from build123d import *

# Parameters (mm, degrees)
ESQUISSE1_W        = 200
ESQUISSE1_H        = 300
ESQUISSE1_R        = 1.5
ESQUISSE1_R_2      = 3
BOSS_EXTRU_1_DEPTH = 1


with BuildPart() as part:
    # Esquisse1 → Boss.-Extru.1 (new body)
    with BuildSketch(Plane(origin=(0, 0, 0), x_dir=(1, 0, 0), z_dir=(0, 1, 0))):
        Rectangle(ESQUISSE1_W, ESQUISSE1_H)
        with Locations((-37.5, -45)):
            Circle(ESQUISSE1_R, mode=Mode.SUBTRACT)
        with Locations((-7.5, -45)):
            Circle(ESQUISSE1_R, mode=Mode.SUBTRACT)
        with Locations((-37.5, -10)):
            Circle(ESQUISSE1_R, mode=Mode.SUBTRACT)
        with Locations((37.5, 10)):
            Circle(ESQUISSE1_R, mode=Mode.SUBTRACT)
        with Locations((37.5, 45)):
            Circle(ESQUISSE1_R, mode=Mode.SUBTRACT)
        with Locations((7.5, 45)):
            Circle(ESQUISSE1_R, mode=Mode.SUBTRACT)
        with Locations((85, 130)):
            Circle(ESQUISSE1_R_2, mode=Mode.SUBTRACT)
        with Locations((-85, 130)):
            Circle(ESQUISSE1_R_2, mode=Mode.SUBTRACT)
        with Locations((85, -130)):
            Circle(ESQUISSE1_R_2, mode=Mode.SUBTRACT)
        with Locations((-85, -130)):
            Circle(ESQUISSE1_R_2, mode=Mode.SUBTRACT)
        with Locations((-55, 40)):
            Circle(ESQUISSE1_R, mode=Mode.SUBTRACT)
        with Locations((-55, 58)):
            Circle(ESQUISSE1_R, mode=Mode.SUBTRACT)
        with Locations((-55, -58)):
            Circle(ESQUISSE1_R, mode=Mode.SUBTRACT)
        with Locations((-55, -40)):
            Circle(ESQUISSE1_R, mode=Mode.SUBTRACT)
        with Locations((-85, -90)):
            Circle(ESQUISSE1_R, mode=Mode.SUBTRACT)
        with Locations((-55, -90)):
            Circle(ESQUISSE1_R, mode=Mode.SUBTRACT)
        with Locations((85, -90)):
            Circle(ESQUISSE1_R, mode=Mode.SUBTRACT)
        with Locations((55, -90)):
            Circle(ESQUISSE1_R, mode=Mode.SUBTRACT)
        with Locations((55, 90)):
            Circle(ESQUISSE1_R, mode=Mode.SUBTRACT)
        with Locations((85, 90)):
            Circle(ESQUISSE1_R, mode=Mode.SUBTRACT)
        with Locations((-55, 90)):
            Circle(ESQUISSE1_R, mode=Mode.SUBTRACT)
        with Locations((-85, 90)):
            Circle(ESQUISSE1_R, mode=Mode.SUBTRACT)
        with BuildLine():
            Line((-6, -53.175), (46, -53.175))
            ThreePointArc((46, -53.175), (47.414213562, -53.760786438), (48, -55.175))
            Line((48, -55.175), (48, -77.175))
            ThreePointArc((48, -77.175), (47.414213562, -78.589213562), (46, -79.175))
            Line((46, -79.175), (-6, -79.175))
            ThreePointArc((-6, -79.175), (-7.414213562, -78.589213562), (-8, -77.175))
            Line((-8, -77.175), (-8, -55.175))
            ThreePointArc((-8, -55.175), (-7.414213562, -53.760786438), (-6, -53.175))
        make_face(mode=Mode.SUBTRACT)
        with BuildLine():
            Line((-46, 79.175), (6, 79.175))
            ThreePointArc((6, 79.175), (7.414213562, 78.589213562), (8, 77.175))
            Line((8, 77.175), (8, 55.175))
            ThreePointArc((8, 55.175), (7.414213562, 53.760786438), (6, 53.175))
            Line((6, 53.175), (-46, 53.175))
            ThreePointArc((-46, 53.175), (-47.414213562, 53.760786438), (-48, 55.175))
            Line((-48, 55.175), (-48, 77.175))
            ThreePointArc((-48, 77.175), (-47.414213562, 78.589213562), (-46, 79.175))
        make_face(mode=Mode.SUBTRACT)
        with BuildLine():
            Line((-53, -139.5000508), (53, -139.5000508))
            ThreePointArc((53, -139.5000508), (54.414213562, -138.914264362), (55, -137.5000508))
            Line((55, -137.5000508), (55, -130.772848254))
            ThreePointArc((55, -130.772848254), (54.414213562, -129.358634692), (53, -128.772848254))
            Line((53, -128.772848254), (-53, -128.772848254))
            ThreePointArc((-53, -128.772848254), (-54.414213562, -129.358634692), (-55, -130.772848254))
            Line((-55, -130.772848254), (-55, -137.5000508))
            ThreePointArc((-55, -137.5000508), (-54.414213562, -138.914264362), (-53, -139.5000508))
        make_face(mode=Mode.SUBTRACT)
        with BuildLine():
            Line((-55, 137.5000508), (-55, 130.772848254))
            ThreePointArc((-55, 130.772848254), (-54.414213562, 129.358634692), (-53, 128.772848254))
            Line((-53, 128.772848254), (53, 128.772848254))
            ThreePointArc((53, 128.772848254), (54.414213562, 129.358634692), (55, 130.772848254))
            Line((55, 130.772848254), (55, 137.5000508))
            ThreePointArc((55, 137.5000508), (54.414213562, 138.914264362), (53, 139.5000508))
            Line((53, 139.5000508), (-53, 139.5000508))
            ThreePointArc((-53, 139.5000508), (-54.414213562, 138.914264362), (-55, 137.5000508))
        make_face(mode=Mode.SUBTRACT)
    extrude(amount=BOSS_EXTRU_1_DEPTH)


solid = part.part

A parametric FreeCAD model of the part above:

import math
import FreeCAD as App
import Part
import Sketcher

V = App.Vector

doc = App.newDocument("Part")
body = doc.addObject("PartDesign::Body", "Body")

# Sketch on XZ plane
sketch1 = doc.addObject("Sketcher::SketchObject", "Sketch")
body.addObject(sketch1)
sketch1.AttachmentSupport = (doc.XZ_Plane, [""])
sketch1.MapMode = "FlatFace"
sketch1.addGeometry(Part.LineSegment(V(-100, -150, 0), V(-100, 150, 0)), False)
sketch1.addGeometry(Part.LineSegment(V(-100, 150, 0), V(100, 150, 0)), False)
sketch1.addGeometry(Part.LineSegment(V(100, 150, 0), V(100, -150, 0)), False)
sketch1.addGeometry(Part.LineSegment(V(100, -150, 0), V(-100, -150, 0)), False)
sketch1.addGeometry(Part.Circle(V(-85, 130, 0), V(0, 0, 1), 3), False)
sketch1.addGeometry(Part.Circle(V(-85, 90, 0), V(0, 0, 1), 1.5), False)
sketch1.addGeometry(Part.Circle(V(-55, 90, 0), V(0, 0, 1), 1.5), False)
sketch1.addGeometry(Part.Circle(V(-55, 58, 0), V(0, 0, 1), 1.5), False)
sketch1.addGeometry(Part.Circle(V(-55, 40, 0), V(0, 0, 1), 1.5), False)
sketch1.addGeometry(Part.Circle(V(-37.5, 45, 0), V(0, 0, 1), 1.5), False)
sketch1.addGeometry(Part.Circle(V(-7.5, 45, 0), V(0, 0, 1), 1.5), False)
sketch1.addGeometry(Part.Circle(V(-37.5, 10, 0), V(0, 0, 1), 1.5), False)
sketch1.addGeometry(Part.LineSegment(V(53, 139.5, 0), V(-53, 139.5, 0)), False)
sketch1.addGeometry(Part.ArcOfCircle(Part.Circle(V(-53, 137.5, 0), V(0, 0, 1), 2), math.radians(90), math.radians(180)), False)
sketch1.addGeometry(Part.LineSegment(V(-55, 137.5, 0), V(-55, 130.8, 0)), False)
sketch1.addGeometry(Part.ArcOfCircle(Part.Circle(V(-53, 130.8, 0), V(0, 0, 1), 2), math.radians(-180), math.radians(-90)), False)
sketch1.addGeometry(Part.LineSegment(V(-53, 128.8, 0), V(53, 128.8, 0)), False)
sketch1.addGeometry(Part.ArcOfCircle(Part.Circle(V(53, 130.8, 0), V(0, 0, 1), 2), math.radians(-90), math.radians(0)), False)
sketch1.addGeometry(Part.LineSegment(V(55, 130.8, 0), V(55, 137.5, 0)), False)
sketch1.addGeometry(Part.ArcOfCircle(Part.Circle(V(53, 137.5, 0), V(0, 0, 1), 2), math.radians(0), math.radians(90)), False)
sketch1.addGeometry(Part.Circle(V(85, 130, 0), V(0, 0, 1), 3), False)
sketch1.addGeometry(Part.Circle(V(55, 90, 0), V(0, 0, 1), 1.5), False)
sketch1.addGeometry(Part.Circle(V(85, 90, 0), V(0, 0, 1), 1.5), False)
sketch1.addGeometry(Part.ArcOfCircle(Part.Circle(V(-6, 55.2, 0), V(0, 0, 1), 2), math.radians(-180), math.radians(-90)), False)
sketch1.addGeometry(Part.LineSegment(V(-6, 53.2, 0), V(46, 53.2, 0)), False)
sketch1.addGeometry(Part.ArcOfCircle(Part.Circle(V(46, 55.2, 0), V(0, 0, 1), 2), math.radians(-90), math.radians(0)), False)
sketch1.addGeometry(Part.LineSegment(V(48, 55.2, 0), V(48, 77.2, 0)), False)
sketch1.addGeometry(Part.ArcOfCircle(Part.Circle(V(46, 77.2, 0), V(0, 0, 1), 2), math.radians(0), math.radians(90)), False)
sketch1.addGeometry(Part.LineSegment(V(46, 79.2, 0), V(-6, 79.2, 0)), False)
sketch1.addGeometry(Part.ArcOfCircle(Part.Circle(V(-6, 77.2, 0), V(0, 0, 1), 2), math.radians(90), math.radians(180)), False)
sketch1.addGeometry(Part.LineSegment(V(-8, 77.2, 0), V(-8, 55.2, 0)), False)
sketch1.addGeometry(Part.Circle(V(-55, -40, 0), V(0, 0, 1), 1.5), False)
sketch1.addGeometry(Part.Circle(V(-55, -58, 0), V(0, 0, 1), 1.5), False)
sketch1.addGeometry(Part.ArcOfCircle(Part.Circle(V(-46, -77.2, 0), V(0, 0, 1), 2), math.radians(-180), math.radians(-90)), False)
sketch1.addGeometry(Part.LineSegment(V(-46, -79.2, 0), V(6, -79.2, 0)), False)
sketch1.addGeometry(Part.ArcOfCircle(Part.Circle(V(6, -77.2, 0), V(0, 0, 1), 2), math.radians(-90), math.radians(0)), False)
sketch1.addGeometry(Part.LineSegment(V(8, -77.2, 0), V(8, -55.2, 0)), False)
sketch1.addGeometry(Part.ArcOfCircle(Part.Circle(V(6, -55.2, 0), V(0, 0, 1), 2), math.radians(0), math.radians(90)), False)
sketch1.addGeometry(Part.LineSegment(V(6, -53.2, 0), V(-46, -53.2, 0)), False)
sketch1.addGeometry(Part.ArcOfCircle(Part.Circle(V(-46, -55.2, 0), V(0, 0, 1), 2), math.radians(90), math.radians(180)), False)
sketch1.addGeometry(Part.LineSegment(V(-48, -55.2, 0), V(-48, -77.2, 0)), False)
sketch1.addGeometry(Part.Circle(V(-85, -90, 0), V(0, 0, 1), 1.5), False)
sketch1.addGeometry(Part.Circle(V(-55, -90, 0), V(0, 0, 1), 1.5), False)
sketch1.addGeometry(Part.Circle(V(-85, -130, 0), V(0, 0, 1), 3), False)
sketch1.addGeometry(Part.Circle(V(37.5, -10, 0), V(0, 0, 1), 1.5), False)
sketch1.addGeometry(Part.Circle(V(7.5, -45, 0), V(0, 0, 1), 1.5), False)
sketch1.addGeometry(Part.Circle(V(37.5, -45, 0), V(0, 0, 1), 1.5), False)
sketch1.addGeometry(Part.LineSegment(V(-55, -130.8, 0), V(-55, -137.5, 0)), False)
sketch1.addGeometry(Part.ArcOfCircle(Part.Circle(V(-53, -137.5, 0), V(0, 0, 1), 2), math.radians(-180), math.radians(-90)), False)
sketch1.addGeometry(Part.LineSegment(V(-53, -139.5, 0), V(53, -139.5, 0)), False)
sketch1.addGeometry(Part.ArcOfCircle(Part.Circle(V(53, -137.5, 0), V(0, 0, 1), 2), math.radians(-90), math.radians(0)), False)
sketch1.addGeometry(Part.LineSegment(V(55, -137.5, 0), V(55, -130.8, 0)), False)
sketch1.addGeometry(Part.ArcOfCircle(Part.Circle(V(53, -130.8, 0), V(0, 0, 1), 2), math.radians(0), math.radians(90)), False)
sketch1.addGeometry(Part.LineSegment(V(53, -128.8, 0), V(-53, -128.8, 0)), False)
sketch1.addGeometry(Part.ArcOfCircle(Part.Circle(V(-53, -130.8, 0), V(0, 0, 1), 2), math.radians(90), math.radians(180)), False)
sketch1.addGeometry(Part.Circle(V(55, -90, 0), V(0, 0, 1), 1.5), False)
sketch1.addGeometry(Part.Circle(V(85, -90, 0), V(0, 0, 1), 1.5), False)
sketch1.addGeometry(Part.Circle(V(85, -130, 0), V(0, 0, 1), 3), False)
sketch1.addConstraint(Sketcher.Constraint("Coincident", 0, 2, 1, 1))
sketch1.addConstraint(Sketcher.Constraint("Coincident", 1, 2, 2, 1))
sketch1.addConstraint(Sketcher.Constraint("Coincident", 2, 2, 3, 1))
sketch1.addConstraint(Sketcher.Constraint("Coincident", 3, 2, 0, 1))
sketch1.addConstraint(Sketcher.Constraint("Tangent", 12, 2, 13, 1))
sketch1.addConstraint(Sketcher.Constraint("Tangent", 13, 2, 14, 1))
sketch1.addConstraint(Sketcher.Constraint("Tangent", 14, 2, 15, 1))
sketch1.addConstraint(Sketcher.Constraint("Tangent", 15, 2, 16, 1))
sketch1.addConstraint(Sketcher.Constraint("Tangent", 16, 2, 17, 1))
sketch1.addConstraint(Sketcher.Constraint("Tangent", 17, 2, 18, 1))
sketch1.addConstraint(Sketcher.Constraint("Tangent", 18, 2, 19, 1))
sketch1.addConstraint(Sketcher.Constraint("Tangent", 19, 2, 12, 1))
sketch1.addConstraint(Sketcher.Constraint("Tangent", 23, 2, 24, 1))
sketch1.addConstraint(Sketcher.Constraint("Tangent", 24, 2, 25, 1))
sketch1.addConstraint(Sketcher.Constraint("Tangent", 25, 2, 26, 1))
sketch1.addConstraint(Sketcher.Constraint("Tangent", 26, 2, 27, 1))
sketch1.addConstraint(Sketcher.Constraint("Tangent", 27, 2, 28, 1))
sketch1.addConstraint(Sketcher.Constraint("Tangent", 28, 2, 29, 1))
sketch1.addConstraint(Sketcher.Constraint("Tangent", 29, 2, 30, 1))
sketch1.addConstraint(Sketcher.Constraint("Tangent", 30, 2, 23, 1))
sketch1.addConstraint(Sketcher.Constraint("Tangent", 33, 2, 34, 1))
sketch1.addConstraint(Sketcher.Constraint("Tangent", 34, 2, 35, 1))
sketch1.addConstraint(Sketcher.Constraint("Tangent", 35, 2, 36, 1))
sketch1.addConstraint(Sketcher.Constraint("Tangent", 36, 2, 37, 1))
sketch1.addConstraint(Sketcher.Constraint("Tangent", 37, 2, 38, 1))
sketch1.addConstraint(Sketcher.Constraint("Tangent", 38, 2, 39, 1))
sketch1.addConstraint(Sketcher.Constraint("Tangent", 39, 2, 40, 1))
sketch1.addConstraint(Sketcher.Constraint("Tangent", 40, 2, 33, 1))
sketch1.addConstraint(Sketcher.Constraint("Tangent", 47, 2, 48, 1))
sketch1.addConstraint(Sketcher.Constraint("Tangent", 48, 2, 49, 1))
sketch1.addConstraint(Sketcher.Constraint("Tangent", 49, 2, 50, 1))
sketch1.addConstraint(Sketcher.Constraint("Tangent", 50, 2, 51, 1))
sketch1.addConstraint(Sketcher.Constraint("Tangent", 51, 2, 52, 1))
sketch1.addConstraint(Sketcher.Constraint("Tangent", 52, 2, 53, 1))
sketch1.addConstraint(Sketcher.Constraint("Tangent", 53, 2, 54, 1))
sketch1.addConstraint(Sketcher.Constraint("Tangent", 54, 2, 47, 1))
sketch1.addConstraint(Sketcher.Constraint("Vertical", 0))
sketch1.addConstraint(Sketcher.Constraint("Horizontal", 1))
sketch1.addConstraint(Sketcher.Constraint("Vertical", 2))
sketch1.addConstraint(Sketcher.Constraint("Horizontal", 3))
sketch1.addConstraint(Sketcher.Constraint("Horizontal", 12))
sketch1.addConstraint(Sketcher.Constraint("Vertical", 14))
sketch1.addConstraint(Sketcher.Constraint("Horizontal", 16))
sketch1.addConstraint(Sketcher.Constraint("Vertical", 18))
sketch1.addConstraint(Sketcher.Constraint("Horizontal", 24))
sketch1.addConstraint(Sketcher.Constraint("Vertical", 26))
sketch1.addConstraint(Sketcher.Constraint("Horizontal", 28))
sketch1.addConstraint(Sketcher.Constraint("Vertical", 30))
sketch1.addConstraint(Sketcher.Constraint("Horizontal", 34))
sketch1.addConstraint(Sketcher.Constraint("Vertical", 36))
sketch1.addConstraint(Sketcher.Constraint("Horizontal", 38))
sketch1.addConstraint(Sketcher.Constraint("Vertical", 40))
sketch1.addConstraint(Sketcher.Constraint("Vertical", 47))
sketch1.addConstraint(Sketcher.Constraint("Horizontal", 49))
sketch1.addConstraint(Sketcher.Constraint("Vertical", 51))
sketch1.addConstraint(Sketcher.Constraint("Horizontal", 53))
sketch1.addConstraint(Sketcher.Constraint("Equal", 5, 6))
sketch1.addConstraint(Sketcher.Constraint("Equal", 6, 7))
sketch1.addConstraint(Sketcher.Constraint("Equal", 7, 8))
sketch1.addConstraint(Sketcher.Constraint("Equal", 8, 9))
sketch1.addConstraint(Sketcher.Constraint("Equal", 9, 10))
sketch1.addConstraint(Sketcher.Constraint("Equal", 10, 11))
sketch1.addConstraint(Sketcher.Constraint("Equal", 13, 15))
sketch1.addConstraint(Sketcher.Constraint("Equal", 15, 17))
sketch1.addConstraint(Sketcher.Constraint("Equal", 17, 19))
sketch1.addConstraint(Sketcher.Constraint("Equal", 4, 20))
sketch1.addConstraint(Sketcher.Constraint("Equal", 11, 21))
sketch1.addConstraint(Sketcher.Constraint("Equal", 21, 22))
sketch1.addConstraint(Sketcher.Constraint("Equal", 19, 23))
sketch1.addConstraint(Sketcher.Constraint("Equal", 23, 25))
sketch1.addConstraint(Sketcher.Constraint("Equal", 25, 27))
sketch1.addConstraint(Sketcher.Constraint("Equal", 27, 29))
sketch1.addConstraint(Sketcher.Constraint("Equal", 22, 31))
sketch1.addConstraint(Sketcher.Constraint("Equal", 31, 32))
sketch1.addConstraint(Sketcher.Constraint("Equal", 29, 33))
sketch1.addConstraint(Sketcher.Constraint("Equal", 33, 35))
sketch1.addConstraint(Sketcher.Constraint("Equal", 35, 37))
sketch1.addConstraint(Sketcher.Constraint("Equal", 37, 39))
sketch1.addConstraint(Sketcher.Constraint("Equal", 32, 41))
sketch1.addConstraint(Sketcher.Constraint("Equal", 41, 42))
sketch1.addConstraint(Sketcher.Constraint("Equal", 20, 43))
sketch1.addConstraint(Sketcher.Constraint("Equal", 42, 44))
sketch1.addConstraint(Sketcher.Constraint("Equal", 44, 45))
sketch1.addConstraint(Sketcher.Constraint("Equal", 45, 46))
sketch1.addConstraint(Sketcher.Constraint("Equal", 39, 48))
sketch1.addConstraint(Sketcher.Constraint("Equal", 48, 50))
sketch1.addConstraint(Sketcher.Constraint("Equal", 50, 52))
sketch1.addConstraint(Sketcher.Constraint("Equal", 52, 54))
sketch1.addConstraint(Sketcher.Constraint("Equal", 46, 55))
sketch1.addConstraint(Sketcher.Constraint("Equal", 55, 56))
sketch1.addConstraint(Sketcher.Constraint("Equal", 43, 57))
sketch1.addConstraint(Sketcher.Constraint("Symmetric", 27, 3, 33, 3, -1, 1))
sketch1.addConstraint(Sketcher.Constraint("Symmetric", 23, 3, 37, 3, -1, 1))
sketch1.addConstraint(Sketcher.Constraint("Symmetric", 22, 3, 41, 3, -1, 1))
sketch1.addConstraint(Sketcher.Constraint("Symmetric", 21, 3, 42, 3, -1, 1))
sketch1.addConstraint(Sketcher.Constraint("Symmetric", 20, 3, 43, 3, -1, 1))
sketch1.addConstraint(Sketcher.Constraint("Symmetric", 11, 3, 44, 3, -1, 1))
sketch1.addConstraint(Sketcher.Constraint("Symmetric", 10, 3, 45, 3, -1, 1))
sketch1.addConstraint(Sketcher.Constraint("Symmetric", 9, 3, 46, 3, -1, 1))
sketch1.addConstraint(Sketcher.Constraint("Symmetric", 19, 3, 48, 3, -1, 1))
sketch1.addConstraint(Sketcher.Constraint("Symmetric", 15, 3, 52, 3, -1, 1))
sketch1.addConstraint(Sketcher.Constraint("Symmetric", 6, 3, 55, 3, -1, 1))
sketch1.addConstraint(Sketcher.Constraint("Symmetric", 5, 3, 56, 3, -1, 1))
sketch1.addConstraint(Sketcher.Constraint("Symmetric", 4, 3, 57, 3, -1, 1))
sketch1.addConstraint(Sketcher.Constraint("Symmetric", 0, 2, 2, 2, -1, 1))
sketch1.addConstraint(Sketcher.Constraint("Symmetric", 4, 3, 20, 3, -2))
sketch1.addConstraint(Sketcher.Constraint("Symmetric", 6, 3, 21, 3, -2))
sketch1.addConstraint(Sketcher.Constraint("Symmetric", 5, 3, 22, 3, -2))
sketch1.addConstraint(Sketcher.Constraint("Symmetric", 8, 3, 31, 3, -1))
sketch1.addConstraint(Sketcher.Constraint("Symmetric", 7, 3, 32, 3, -1))
sketch1.addConstraint(Sketcher.Constraint("Horizontal", 5, 3, 6, 3))
sketch1.addConstraint(Sketcher.Constraint("Horizontal", 9, 3, 10, 3))
sketch1.addConstraint(Sketcher.Constraint("Vertical", 4, 3, 5, 3))
sketch1.addConstraint(Sketcher.Constraint("Vertical", 6, 3, 7, 3))
sketch1.addConstraint(Sketcher.Constraint("Vertical", 7, 3, 8, 3))
sketch1.addConstraint(Sketcher.Constraint("Vertical", 9, 3, 11, 3))
sketch1.addConstraint(Sketcher.Constraint("Vertical", 15, 3, 48, 3))
sketch1.addConstraint(Sketcher.Constraint("Vertical", 42, 3, 13, 2))
sketch1.addConstraint(Sketcher.Constraint("Diameter", 4, 6.0))
sketch1.addConstraint(Sketcher.Constraint("Diameter", 5, 3.0))
sketch1.addConstraint(Sketcher.Constraint("Radius", 13, 2.0))
sketch1.addConstraint(Sketcher.Constraint("DistanceX", 1, 1, 1, 2, 200.0))
sketch1.addConstraint(Sketcher.Constraint("DistanceX", 12, 2, 12, 1, 106.0))
sketch1.addConstraint(Sketcher.Constraint("DistanceX", 24, 1, 24, 2, 52.0))
sketch1.addConstraint(Sketcher.Constraint("DistanceY", 0, 1, 0, 2, 300.0))
sketch1.addConstraint(Sketcher.Constraint("DistanceY", 26, 1, 26, 2, 22.0))
sketch1.addConstraint(Sketcher.Constraint("DistanceX", 4, 3, -1, 1, 85.0))
sketch1.addConstraint(Sketcher.Constraint("DistanceY", -1, 1, 4, 3, 130.0))
sketch1.addConstraint(Sketcher.Constraint("DistanceY", -1, 1, 5, 3, 90.0))
sketch1.addConstraint(Sketcher.Constraint("DistanceY", -1, 1, 7, 3, 58.0))
sketch1.addConstraint(Sketcher.Constraint("DistanceY", -1, 1, 8, 3, 40.0))
sketch1.addConstraint(Sketcher.Constraint("DistanceY", -1, 1, 9, 3, 45.0))
sketch1.addConstraint(Sketcher.Constraint("DistanceY", -1, 1, 11, 3, 10.0))
sketch1.addConstraint(Sketcher.Constraint("DistanceX", 23, 3, -1, 1, 6.0))
sketch1.addConstraint(Sketcher.Constraint("DistanceX", 9, 3, -1, 1, 37.5))
sketch1.addConstraint(Sketcher.Constraint("DistanceX", 10, 3, -1, 1, 7.5))
sketch1.addConstraint(Sketcher.Constraint("DistanceY", -1, 1, 23, 3, 55.175))
sketch1.addConstraint(Sketcher.Constraint("DistanceY", 14, 2, 14, 1, 6.727203))
sketch1.addConstraint(Sketcher.Constraint("DistanceY", -1, 1, 13, 3, 137.500051))
pad1 = doc.addObject("PartDesign::Pad", "Pad")
body.addObject(pad1)
pad1.Profile = sketch1
pad1.Length = 1
pad1.Reversed = True

doc.recompute()
